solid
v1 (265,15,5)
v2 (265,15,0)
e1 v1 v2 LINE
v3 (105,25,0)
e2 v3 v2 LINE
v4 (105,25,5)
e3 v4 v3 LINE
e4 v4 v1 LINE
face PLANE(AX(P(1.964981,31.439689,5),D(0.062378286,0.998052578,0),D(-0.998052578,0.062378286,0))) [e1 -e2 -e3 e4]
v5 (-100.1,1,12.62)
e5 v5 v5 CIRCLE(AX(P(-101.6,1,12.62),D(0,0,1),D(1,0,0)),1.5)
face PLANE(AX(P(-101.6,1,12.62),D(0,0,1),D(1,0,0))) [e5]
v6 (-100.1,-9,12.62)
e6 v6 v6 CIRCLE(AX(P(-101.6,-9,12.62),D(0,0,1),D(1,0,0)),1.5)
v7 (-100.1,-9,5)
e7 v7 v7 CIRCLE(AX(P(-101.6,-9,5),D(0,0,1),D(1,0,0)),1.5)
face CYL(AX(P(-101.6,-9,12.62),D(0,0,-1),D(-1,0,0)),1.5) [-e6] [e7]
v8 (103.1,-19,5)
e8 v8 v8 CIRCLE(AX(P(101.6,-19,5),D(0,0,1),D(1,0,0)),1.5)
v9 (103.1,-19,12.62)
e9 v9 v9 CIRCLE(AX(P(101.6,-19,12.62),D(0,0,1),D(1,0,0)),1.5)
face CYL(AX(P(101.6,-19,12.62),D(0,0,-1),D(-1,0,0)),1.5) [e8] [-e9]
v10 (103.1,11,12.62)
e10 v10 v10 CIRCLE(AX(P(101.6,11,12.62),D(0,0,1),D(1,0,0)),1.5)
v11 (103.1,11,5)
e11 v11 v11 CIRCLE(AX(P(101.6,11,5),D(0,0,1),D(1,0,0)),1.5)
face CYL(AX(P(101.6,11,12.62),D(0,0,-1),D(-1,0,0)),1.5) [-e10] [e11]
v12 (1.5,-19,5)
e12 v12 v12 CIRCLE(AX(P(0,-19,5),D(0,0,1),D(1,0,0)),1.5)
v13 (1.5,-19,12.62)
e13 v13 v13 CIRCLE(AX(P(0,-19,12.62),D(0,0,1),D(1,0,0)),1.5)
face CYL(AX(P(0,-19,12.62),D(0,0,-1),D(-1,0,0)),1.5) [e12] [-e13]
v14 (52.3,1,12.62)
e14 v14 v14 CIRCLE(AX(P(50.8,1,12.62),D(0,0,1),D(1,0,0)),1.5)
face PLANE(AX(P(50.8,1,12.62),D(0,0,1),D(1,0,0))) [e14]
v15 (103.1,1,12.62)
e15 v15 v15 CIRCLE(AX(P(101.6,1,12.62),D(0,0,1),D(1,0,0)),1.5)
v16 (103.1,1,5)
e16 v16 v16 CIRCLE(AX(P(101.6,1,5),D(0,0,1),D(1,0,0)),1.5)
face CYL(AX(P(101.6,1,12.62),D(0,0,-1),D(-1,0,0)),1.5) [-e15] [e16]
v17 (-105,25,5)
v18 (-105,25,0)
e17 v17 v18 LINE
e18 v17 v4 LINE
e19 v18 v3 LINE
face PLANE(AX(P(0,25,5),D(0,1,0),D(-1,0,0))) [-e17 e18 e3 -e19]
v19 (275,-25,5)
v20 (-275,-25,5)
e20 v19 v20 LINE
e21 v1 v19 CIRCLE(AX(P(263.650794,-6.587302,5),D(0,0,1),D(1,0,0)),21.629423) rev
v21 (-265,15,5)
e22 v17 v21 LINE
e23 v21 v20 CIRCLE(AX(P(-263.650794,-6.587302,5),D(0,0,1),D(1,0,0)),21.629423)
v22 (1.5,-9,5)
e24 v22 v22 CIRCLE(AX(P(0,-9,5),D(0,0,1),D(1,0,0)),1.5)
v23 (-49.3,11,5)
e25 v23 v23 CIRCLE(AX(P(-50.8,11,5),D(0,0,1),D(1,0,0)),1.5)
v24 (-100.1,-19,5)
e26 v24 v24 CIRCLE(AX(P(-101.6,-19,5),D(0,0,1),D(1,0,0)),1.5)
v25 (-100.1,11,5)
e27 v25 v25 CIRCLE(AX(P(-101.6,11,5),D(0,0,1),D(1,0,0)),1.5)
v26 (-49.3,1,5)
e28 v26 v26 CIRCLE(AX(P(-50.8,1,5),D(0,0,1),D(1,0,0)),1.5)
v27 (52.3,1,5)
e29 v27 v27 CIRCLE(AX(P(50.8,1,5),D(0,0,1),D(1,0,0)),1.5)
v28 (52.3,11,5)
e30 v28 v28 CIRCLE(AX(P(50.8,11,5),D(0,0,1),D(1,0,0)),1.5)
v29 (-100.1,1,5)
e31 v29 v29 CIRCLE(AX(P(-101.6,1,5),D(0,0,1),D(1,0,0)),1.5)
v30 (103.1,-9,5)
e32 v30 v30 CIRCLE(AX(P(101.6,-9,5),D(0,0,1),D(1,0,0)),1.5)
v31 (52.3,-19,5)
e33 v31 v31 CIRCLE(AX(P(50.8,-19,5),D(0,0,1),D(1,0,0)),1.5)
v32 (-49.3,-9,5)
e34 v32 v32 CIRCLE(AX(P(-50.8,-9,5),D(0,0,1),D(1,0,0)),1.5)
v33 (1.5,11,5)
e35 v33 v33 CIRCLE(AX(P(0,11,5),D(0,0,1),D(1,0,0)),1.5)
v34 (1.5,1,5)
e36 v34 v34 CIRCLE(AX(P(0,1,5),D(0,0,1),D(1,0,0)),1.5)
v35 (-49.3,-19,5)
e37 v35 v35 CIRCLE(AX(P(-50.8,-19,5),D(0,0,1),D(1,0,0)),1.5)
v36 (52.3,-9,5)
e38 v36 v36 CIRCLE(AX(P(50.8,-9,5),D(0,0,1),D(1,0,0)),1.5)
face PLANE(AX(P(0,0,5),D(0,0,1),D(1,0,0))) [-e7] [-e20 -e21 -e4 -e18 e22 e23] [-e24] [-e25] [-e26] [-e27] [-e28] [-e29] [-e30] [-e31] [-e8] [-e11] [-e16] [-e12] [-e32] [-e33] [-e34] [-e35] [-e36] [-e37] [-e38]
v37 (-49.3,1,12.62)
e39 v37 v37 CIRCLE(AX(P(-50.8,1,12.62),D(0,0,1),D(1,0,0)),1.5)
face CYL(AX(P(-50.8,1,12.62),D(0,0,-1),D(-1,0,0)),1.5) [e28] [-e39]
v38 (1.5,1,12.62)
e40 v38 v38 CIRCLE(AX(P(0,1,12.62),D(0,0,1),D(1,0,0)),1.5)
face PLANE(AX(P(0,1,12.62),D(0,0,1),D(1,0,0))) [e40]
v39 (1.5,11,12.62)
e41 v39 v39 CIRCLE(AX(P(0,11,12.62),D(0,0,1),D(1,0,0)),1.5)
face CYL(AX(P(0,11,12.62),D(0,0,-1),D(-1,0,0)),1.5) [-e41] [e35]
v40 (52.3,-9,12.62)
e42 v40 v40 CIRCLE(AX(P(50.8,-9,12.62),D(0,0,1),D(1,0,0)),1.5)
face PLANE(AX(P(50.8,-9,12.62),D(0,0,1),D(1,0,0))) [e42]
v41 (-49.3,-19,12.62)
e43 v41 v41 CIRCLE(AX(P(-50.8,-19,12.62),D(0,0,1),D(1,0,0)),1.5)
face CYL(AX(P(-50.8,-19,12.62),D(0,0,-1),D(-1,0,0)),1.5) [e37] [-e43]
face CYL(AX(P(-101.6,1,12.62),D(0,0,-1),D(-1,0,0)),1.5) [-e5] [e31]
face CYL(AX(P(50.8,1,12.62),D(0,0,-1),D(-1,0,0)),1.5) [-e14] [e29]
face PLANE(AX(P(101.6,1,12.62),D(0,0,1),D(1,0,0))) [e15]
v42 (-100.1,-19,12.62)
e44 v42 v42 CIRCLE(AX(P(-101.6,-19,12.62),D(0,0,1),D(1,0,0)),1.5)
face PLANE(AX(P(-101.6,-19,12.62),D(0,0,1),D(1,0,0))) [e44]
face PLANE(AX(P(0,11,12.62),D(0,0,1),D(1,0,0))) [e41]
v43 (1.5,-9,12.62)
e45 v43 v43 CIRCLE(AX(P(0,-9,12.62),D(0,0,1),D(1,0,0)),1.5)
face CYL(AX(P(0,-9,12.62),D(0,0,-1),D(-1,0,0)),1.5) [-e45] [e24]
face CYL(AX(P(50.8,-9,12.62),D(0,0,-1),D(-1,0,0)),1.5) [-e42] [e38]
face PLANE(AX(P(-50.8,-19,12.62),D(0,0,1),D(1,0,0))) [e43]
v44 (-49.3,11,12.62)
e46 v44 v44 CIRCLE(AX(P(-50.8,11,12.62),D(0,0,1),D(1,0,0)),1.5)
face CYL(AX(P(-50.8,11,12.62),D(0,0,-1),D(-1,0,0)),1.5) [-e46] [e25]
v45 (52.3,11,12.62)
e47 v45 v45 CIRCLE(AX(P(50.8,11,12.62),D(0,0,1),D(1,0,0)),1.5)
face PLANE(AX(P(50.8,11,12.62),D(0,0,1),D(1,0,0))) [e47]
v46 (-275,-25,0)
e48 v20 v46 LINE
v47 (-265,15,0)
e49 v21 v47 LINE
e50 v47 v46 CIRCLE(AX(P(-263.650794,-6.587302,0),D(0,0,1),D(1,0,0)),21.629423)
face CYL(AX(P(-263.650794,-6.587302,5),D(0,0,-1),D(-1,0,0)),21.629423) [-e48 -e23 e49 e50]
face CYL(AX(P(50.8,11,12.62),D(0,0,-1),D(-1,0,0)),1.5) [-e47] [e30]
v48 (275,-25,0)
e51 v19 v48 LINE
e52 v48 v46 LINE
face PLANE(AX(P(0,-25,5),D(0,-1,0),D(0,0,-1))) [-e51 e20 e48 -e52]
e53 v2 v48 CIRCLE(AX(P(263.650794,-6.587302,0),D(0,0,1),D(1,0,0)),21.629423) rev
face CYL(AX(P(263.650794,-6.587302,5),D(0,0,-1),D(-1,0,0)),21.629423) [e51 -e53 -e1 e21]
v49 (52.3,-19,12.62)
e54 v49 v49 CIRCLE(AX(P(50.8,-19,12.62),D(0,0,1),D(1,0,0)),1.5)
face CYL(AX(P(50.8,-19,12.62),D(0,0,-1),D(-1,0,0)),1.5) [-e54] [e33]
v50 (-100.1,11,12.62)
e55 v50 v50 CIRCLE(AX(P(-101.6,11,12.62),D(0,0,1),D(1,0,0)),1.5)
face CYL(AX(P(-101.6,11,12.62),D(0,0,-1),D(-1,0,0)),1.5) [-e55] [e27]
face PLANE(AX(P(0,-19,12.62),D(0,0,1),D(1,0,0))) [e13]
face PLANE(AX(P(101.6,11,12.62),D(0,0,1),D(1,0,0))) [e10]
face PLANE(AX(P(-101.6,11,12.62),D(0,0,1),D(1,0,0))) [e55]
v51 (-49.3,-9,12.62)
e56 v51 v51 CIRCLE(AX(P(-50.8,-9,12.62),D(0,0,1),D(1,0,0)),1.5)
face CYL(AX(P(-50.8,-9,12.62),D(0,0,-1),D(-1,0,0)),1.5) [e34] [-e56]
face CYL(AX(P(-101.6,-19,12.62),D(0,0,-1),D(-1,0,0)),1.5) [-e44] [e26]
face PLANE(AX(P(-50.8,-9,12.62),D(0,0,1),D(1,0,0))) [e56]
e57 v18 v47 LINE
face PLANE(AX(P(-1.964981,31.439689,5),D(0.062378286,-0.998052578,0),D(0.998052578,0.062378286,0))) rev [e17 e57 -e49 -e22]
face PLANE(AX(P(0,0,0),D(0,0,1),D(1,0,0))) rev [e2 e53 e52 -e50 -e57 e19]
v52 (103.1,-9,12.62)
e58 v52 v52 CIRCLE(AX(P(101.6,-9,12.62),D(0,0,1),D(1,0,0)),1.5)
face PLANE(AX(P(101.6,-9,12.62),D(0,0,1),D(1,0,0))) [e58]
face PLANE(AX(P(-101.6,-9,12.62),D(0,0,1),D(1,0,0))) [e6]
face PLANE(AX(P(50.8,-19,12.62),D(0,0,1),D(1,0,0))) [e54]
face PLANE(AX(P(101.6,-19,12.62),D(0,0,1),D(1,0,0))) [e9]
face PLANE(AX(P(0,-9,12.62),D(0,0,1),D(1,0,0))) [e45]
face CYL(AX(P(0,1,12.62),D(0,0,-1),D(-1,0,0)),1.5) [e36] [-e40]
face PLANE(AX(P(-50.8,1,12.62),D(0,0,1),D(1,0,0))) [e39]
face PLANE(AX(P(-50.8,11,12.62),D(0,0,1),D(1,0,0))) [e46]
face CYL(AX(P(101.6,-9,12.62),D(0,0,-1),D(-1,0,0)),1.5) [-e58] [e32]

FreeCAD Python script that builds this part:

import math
import FreeCAD as App
import Part
import Sketcher

V = App.Vector
Q = App.Units.Quantity

doc = App.newDocument("Part")
body = doc.addObject("PartDesign::Body", "Body")

# Sketch on XY plane
sketch1 = body.newObject("Sketcher::SketchObject", "Sketch")
sketch1.AttachmentSupport = (doc.getObject("XY_Plane"), [""])
sketch1.MapMode = "FlatFace"
sketch1.addGeometry(Part.LineSegment(V(-105, 25, 0), V(-265, 15, 0)), False)
sketch1.addGeometry(Part.ArcOfCircle(Part.Circle(V(-264, -7, 0), V(0, 0, 1), 22), math.radians(94), math.radians(238)), False)
sketch1.addGeometry(Part.LineSegment(V(-275, -25, 0), V(275, -25, 0)), False)
sketch1.addGeometry(Part.ArcOfCircle(Part.Circle(V(264, -7, 0), V(0, 0, 1), 22), math.radians(-58), math.radians(86)), False)
sketch1.addGeometry(Part.LineSegment(V(265, 15, 0), V(105, 25, 0)), False)
sketch1.addGeometry(Part.LineSegment(V(105, 25, 0), V(-105, 25, 0)), False)
sketch1.addConstraint(Sketcher.Constraint("Tangent", 0, 2, 1, 1))
sketch1.addConstraint(Sketcher.Constraint("Coincident", 1, 2, 2, 1))
sketch1.addConstraint(Sketcher.Constraint("Coincident", 2, 2, 3, 1))
sketch1.addConstraint(Sketcher.Constraint("Tangent", 3, 2, 4, 1))
sketch1.addConstraint(Sketcher.Constraint("Coincident", 4, 2, 5, 1))
sketch1.addConstraint(Sketcher.Constraint("Coincident", 5, 2, 0, 1))
sketch1.addConstraint(Sketcher.Constraint("Horizontal", 2))
sketch1.addConstraint(Sketcher.Constraint("Horizontal", 5))
sketch1.addConstraint(Sketcher.Constraint("Equal", 1, 3))
sketch1.addConstraint(Sketcher.Constraint("Symmetric", 1, 3, 3, 3, -2))
sketch1.addConstraint(Sketcher.Constraint("Equal", 0, 4))
sketch1.addConstraint(Sketcher.Constraint("DistanceX", 2, 1, 2, 2, Q("550 mm")))
sketch1.addConstraint(Sketcher.Constraint("DistanceX", 5, 2, 5, 1, Q("210 mm")))
sketch1.addConstraint(Sketcher.Constraint("DistanceX", 0, 2, -1, 1, Q("265 mm")))
sketch1.addConstraint(Sketcher.Constraint("DistanceY", -1, 1, 0, 2, Q("15 mm")))
sketch1.addConstraint(Sketcher.Constraint("DistanceY", 1, 2, -1, 1, Q("25 mm")))
sketch1.addConstraint(Sketcher.Constraint("DistanceY", -1, 1, 4, 2, Q("25 mm")))
pad1 = body.newObject("PartDesign::Pad", "Pad")
pad1.Profile = sketch1
pad1.Length = 5

# Sketch on XY plane
sketch2 = body.newObject("Sketcher::SketchObject", "Sketch001")
sketch2.AttachmentSupport = (doc.getObject("XY_Plane"), [""])
sketch2.MapMode = "FlatFace"
sketch2.AttachmentOffset = App.Placement(V(0, 0, 5), App.Rotation())
sketch2.addGeometry(Part.Circle(V(0, 11, 0), V(0, 0, 1), 1.5), False)
sketch2.addGeometry(Part.Circle(V(0, 1, 0), V(0, 0, 1), 1.5), False)
sketch2.addGeometry(Part.Circle(V(0, -9, 0), V(0, 0, 1), 1.5), False)
sketch2.addGeometry(Part.Circle(V(0, -19, 0), V(0, 0, 1), 1.5), False)
sketch2.addGeometry(Part.Circle(V(50.8, 11, 0), V(0, 0, 1), 1.5), False)
sketch2.addGeometry(Part.Circle(V(50.8, -9, 0), V(0, 0, 1), 1.5), False)
sketch2.addGeometry(Part.Circle(V(50.8, 1, 0), V(0, 0, 1), 1.5), False)
sketch2.addGeometry(Part.Circle(V(50.8, -19, 0), V(0, 0, 1), 1.5), False)
sketch2.addGeometry(Part.Circle(V(101.6, 11, 0), V(0, 0, 1), 1.5), False)
sketch2.addGeometry(Part.Circle(V(101.6, -9, 0), V(0, 0, 1), 1.5), False)
sketch2.addGeometry(Part.Circle(V(101.6, 1, 0), V(0, 0, 1), 1.5), False)
sketch2.addGeometry(Part.Circle(V(101.6, -19, 0), V(0, 0, 1), 1.5), False)
sketch2.addGeometry(Part.Circle(V(-50.8, 11, 0), V(0, 0, 1), 1.5), False)
sketch2.addGeometry(Part.Circle(V(-50.8, 1, 0), V(0, 0, 1), 1.5), False)
sketch2.addGeometry(Part.Circle(V(-50.8, -9, 0), V(0, 0, 1), 1.5), False)
sketch2.addGeometry(Part.Circle(V(-50.8, -19, 0), V(0, 0, 1), 1.5), False)
sketch2.addGeometry(Part.Circle(V(-101.6, 11, 0), V(0, 0, 1), 1.5), False)
sketch2.addGeometry(Part.Circle(V(-101.6, 1, 0), V(0, 0, 1), 1.5), False)
sketch2.addGeometry(Part.Circle(V(-101.6, -9, 0), V(0, 0, 1), 1.5), False)
sketch2.addGeometry(Part.Circle(V(-101.6, -19, 0), V(0, 0, 1), 1.5), False)
sketch2.addConstraint(Sketcher.Constraint("Equal", 0, 1))
sketch2.addConstraint(Sketcher.Constraint("Equal", 1, 2))
sketch2.addConstraint(Sketcher.Constraint("Equal", 2, 3))
sketch2.addConstraint(Sketcher.Constraint("Equal", 3, 4))
sketch2.addConstraint(Sketcher.Constraint("Equal", 4, 5))
sketch2.addConstraint(Sketcher.Constraint("Equal", 5, 6))
sketch2.addConstraint(Sketcher.Constraint("Equal", 6, 7))
sketch2.addConstraint(Sketcher.Constraint("Equal", 7, 8))
sketch2.addConstraint(Sketcher.Constraint("Equal", 8, 9))
sketch2.addConstraint(Sketcher.Constraint("Equal", 9, 10))
sketch2.addConstraint(Sketcher.Constraint("Equal", 10, 11))
sketch2.addConstraint(Sketcher.Constraint("Equal", 11, 12))
sketch2.addConstraint(Sketcher.Constraint("Equal", 12, 13))
sketch2.addConstraint(Sketcher.Constraint("Equal", 13, 14))
sketch2.addConstraint(Sketcher.Constraint("Equal", 14, 15))
sketch2.addConstraint(Sketcher.Constraint("Equal", 15, 16))
sketch2.addConstraint(Sketcher.Constraint("Equal", 16, 17))
sketch2.addConstraint(Sketcher.Constraint("Equal", 17, 18))
sketch2.addConstraint(Sketcher.Constraint("Equal", 18, 19))
sketch2.addConstraint(Sketcher.Constraint("Symmetric", 4, 3, 12, 3, -2))
sketch2.addConstraint(Sketcher.Constraint("Symmetric", 6, 3, 13, 3, -2))
sketch2.addConstraint(Sketcher.Constraint("Symmetric", 5, 3, 14, 3, -2))
sketch2.addConstraint(Sketcher.Constraint("Symmetric", 7, 3, 15, 3, -2))
sketch2.addConstraint(Sketcher.Constraint("Symmetric", 8, 3, 16, 3, -2))
sketch2.addConstraint(Sketcher.Constraint("Symmetric", 10, 3, 17, 3, -2))
sketch2.addConstraint(Sketcher.Constraint("Symmetric", 9, 3, 18, 3, -2))
sketch2.addConstraint(Sketcher.Constraint("Symmetric", 11, 3, 19, 3, -2))
sketch2.addConstraint(Sketcher.Constraint("PointOnObject", 0, 3, -2))
sketch2.addConstraint(Sketcher.Constraint("PointOnObject", 1, 3, -2))
sketch2.addConstraint(Sketcher.Constraint("PointOnObject", 2, 3, -2))
sketch2.addConstraint(Sketcher.Constraint("PointOnObject", 3, 3, -2))
sketch2.addConstraint(Sketcher.Constraint("Horizontal", 0, 3, 4, 3))
sketch2.addConstraint(Sketcher.Constraint("Horizontal", 2, 3, 5, 3))
sketch2.addConstraint(Sketcher.Constraint("Horizontal", 1, 3, 6, 3))
sketch2.addConstraint(Sketcher.Constraint("Horizontal", 3, 3, 7, 3))
sketch2.addConstraint(Sketcher.Constraint("Horizontal", 4, 3, 8, 3))
sketch2.addConstraint(Sketcher.Constraint("Horizontal", 5, 3, 9, 3))
sketch2.addConstraint(Sketcher.Constraint("Horizontal", 6, 3, 10, 3))
sketch2.addConstraint(Sketcher.Constraint("Horizontal", 7, 3, 11, 3))
sketch2.addConstraint(Sketcher.Constraint("Vertical", 4, 3, 5, 3))
sketch2.addConstraint(Sketcher.Constraint("Vertical", 5, 3, 6, 3))
sketch2.addConstraint(Sketcher.Constraint("Vertical", 6, 3, 7, 3))
sketch2.addConstraint(Sketcher.Constraint("Vertical", 8, 3, 9, 3))
sketch2.addConstraint(Sketcher.Constraint("Vertical", 9, 3, 10, 3))
sketch2.addConstraint(Sketcher.Constraint("Vertical", 10, 3, 11, 3))
sketch2.addConstraint(Sketcher.Constraint("Diameter", 0, Q("3 mm")))
sketch2.addConstraint(Sketcher.Constraint("DistanceY", -1, 1, 0, 3, Q("11 mm")))
sketch2.addConstraint(Sketcher.Constraint("DistanceY", -1, 1, 1, 3, Q("1 mm")))
sketch2.addConstraint(Sketcher.Constraint("DistanceY", 2, 3, -1, 1, Q("9 mm")))
sketch2.addConstraint(Sketcher.Constraint("DistanceY", 3, 3, -1, 1, Q("19 mm")))
sketch2.addConstraint(Sketcher.Constraint("DistanceX", -1, 1, 4, 3, Q("50.8 mm")))
sketch2.addConstraint(Sketcher.Constraint("DistanceX", -1, 1, 8, 3, Q("101.6 mm")))
pad2 = body.newObject("PartDesign::Pad", "Pad001")
pad2.Profile = sketch2
pad2.Length = 7.62

doc.recompute()
